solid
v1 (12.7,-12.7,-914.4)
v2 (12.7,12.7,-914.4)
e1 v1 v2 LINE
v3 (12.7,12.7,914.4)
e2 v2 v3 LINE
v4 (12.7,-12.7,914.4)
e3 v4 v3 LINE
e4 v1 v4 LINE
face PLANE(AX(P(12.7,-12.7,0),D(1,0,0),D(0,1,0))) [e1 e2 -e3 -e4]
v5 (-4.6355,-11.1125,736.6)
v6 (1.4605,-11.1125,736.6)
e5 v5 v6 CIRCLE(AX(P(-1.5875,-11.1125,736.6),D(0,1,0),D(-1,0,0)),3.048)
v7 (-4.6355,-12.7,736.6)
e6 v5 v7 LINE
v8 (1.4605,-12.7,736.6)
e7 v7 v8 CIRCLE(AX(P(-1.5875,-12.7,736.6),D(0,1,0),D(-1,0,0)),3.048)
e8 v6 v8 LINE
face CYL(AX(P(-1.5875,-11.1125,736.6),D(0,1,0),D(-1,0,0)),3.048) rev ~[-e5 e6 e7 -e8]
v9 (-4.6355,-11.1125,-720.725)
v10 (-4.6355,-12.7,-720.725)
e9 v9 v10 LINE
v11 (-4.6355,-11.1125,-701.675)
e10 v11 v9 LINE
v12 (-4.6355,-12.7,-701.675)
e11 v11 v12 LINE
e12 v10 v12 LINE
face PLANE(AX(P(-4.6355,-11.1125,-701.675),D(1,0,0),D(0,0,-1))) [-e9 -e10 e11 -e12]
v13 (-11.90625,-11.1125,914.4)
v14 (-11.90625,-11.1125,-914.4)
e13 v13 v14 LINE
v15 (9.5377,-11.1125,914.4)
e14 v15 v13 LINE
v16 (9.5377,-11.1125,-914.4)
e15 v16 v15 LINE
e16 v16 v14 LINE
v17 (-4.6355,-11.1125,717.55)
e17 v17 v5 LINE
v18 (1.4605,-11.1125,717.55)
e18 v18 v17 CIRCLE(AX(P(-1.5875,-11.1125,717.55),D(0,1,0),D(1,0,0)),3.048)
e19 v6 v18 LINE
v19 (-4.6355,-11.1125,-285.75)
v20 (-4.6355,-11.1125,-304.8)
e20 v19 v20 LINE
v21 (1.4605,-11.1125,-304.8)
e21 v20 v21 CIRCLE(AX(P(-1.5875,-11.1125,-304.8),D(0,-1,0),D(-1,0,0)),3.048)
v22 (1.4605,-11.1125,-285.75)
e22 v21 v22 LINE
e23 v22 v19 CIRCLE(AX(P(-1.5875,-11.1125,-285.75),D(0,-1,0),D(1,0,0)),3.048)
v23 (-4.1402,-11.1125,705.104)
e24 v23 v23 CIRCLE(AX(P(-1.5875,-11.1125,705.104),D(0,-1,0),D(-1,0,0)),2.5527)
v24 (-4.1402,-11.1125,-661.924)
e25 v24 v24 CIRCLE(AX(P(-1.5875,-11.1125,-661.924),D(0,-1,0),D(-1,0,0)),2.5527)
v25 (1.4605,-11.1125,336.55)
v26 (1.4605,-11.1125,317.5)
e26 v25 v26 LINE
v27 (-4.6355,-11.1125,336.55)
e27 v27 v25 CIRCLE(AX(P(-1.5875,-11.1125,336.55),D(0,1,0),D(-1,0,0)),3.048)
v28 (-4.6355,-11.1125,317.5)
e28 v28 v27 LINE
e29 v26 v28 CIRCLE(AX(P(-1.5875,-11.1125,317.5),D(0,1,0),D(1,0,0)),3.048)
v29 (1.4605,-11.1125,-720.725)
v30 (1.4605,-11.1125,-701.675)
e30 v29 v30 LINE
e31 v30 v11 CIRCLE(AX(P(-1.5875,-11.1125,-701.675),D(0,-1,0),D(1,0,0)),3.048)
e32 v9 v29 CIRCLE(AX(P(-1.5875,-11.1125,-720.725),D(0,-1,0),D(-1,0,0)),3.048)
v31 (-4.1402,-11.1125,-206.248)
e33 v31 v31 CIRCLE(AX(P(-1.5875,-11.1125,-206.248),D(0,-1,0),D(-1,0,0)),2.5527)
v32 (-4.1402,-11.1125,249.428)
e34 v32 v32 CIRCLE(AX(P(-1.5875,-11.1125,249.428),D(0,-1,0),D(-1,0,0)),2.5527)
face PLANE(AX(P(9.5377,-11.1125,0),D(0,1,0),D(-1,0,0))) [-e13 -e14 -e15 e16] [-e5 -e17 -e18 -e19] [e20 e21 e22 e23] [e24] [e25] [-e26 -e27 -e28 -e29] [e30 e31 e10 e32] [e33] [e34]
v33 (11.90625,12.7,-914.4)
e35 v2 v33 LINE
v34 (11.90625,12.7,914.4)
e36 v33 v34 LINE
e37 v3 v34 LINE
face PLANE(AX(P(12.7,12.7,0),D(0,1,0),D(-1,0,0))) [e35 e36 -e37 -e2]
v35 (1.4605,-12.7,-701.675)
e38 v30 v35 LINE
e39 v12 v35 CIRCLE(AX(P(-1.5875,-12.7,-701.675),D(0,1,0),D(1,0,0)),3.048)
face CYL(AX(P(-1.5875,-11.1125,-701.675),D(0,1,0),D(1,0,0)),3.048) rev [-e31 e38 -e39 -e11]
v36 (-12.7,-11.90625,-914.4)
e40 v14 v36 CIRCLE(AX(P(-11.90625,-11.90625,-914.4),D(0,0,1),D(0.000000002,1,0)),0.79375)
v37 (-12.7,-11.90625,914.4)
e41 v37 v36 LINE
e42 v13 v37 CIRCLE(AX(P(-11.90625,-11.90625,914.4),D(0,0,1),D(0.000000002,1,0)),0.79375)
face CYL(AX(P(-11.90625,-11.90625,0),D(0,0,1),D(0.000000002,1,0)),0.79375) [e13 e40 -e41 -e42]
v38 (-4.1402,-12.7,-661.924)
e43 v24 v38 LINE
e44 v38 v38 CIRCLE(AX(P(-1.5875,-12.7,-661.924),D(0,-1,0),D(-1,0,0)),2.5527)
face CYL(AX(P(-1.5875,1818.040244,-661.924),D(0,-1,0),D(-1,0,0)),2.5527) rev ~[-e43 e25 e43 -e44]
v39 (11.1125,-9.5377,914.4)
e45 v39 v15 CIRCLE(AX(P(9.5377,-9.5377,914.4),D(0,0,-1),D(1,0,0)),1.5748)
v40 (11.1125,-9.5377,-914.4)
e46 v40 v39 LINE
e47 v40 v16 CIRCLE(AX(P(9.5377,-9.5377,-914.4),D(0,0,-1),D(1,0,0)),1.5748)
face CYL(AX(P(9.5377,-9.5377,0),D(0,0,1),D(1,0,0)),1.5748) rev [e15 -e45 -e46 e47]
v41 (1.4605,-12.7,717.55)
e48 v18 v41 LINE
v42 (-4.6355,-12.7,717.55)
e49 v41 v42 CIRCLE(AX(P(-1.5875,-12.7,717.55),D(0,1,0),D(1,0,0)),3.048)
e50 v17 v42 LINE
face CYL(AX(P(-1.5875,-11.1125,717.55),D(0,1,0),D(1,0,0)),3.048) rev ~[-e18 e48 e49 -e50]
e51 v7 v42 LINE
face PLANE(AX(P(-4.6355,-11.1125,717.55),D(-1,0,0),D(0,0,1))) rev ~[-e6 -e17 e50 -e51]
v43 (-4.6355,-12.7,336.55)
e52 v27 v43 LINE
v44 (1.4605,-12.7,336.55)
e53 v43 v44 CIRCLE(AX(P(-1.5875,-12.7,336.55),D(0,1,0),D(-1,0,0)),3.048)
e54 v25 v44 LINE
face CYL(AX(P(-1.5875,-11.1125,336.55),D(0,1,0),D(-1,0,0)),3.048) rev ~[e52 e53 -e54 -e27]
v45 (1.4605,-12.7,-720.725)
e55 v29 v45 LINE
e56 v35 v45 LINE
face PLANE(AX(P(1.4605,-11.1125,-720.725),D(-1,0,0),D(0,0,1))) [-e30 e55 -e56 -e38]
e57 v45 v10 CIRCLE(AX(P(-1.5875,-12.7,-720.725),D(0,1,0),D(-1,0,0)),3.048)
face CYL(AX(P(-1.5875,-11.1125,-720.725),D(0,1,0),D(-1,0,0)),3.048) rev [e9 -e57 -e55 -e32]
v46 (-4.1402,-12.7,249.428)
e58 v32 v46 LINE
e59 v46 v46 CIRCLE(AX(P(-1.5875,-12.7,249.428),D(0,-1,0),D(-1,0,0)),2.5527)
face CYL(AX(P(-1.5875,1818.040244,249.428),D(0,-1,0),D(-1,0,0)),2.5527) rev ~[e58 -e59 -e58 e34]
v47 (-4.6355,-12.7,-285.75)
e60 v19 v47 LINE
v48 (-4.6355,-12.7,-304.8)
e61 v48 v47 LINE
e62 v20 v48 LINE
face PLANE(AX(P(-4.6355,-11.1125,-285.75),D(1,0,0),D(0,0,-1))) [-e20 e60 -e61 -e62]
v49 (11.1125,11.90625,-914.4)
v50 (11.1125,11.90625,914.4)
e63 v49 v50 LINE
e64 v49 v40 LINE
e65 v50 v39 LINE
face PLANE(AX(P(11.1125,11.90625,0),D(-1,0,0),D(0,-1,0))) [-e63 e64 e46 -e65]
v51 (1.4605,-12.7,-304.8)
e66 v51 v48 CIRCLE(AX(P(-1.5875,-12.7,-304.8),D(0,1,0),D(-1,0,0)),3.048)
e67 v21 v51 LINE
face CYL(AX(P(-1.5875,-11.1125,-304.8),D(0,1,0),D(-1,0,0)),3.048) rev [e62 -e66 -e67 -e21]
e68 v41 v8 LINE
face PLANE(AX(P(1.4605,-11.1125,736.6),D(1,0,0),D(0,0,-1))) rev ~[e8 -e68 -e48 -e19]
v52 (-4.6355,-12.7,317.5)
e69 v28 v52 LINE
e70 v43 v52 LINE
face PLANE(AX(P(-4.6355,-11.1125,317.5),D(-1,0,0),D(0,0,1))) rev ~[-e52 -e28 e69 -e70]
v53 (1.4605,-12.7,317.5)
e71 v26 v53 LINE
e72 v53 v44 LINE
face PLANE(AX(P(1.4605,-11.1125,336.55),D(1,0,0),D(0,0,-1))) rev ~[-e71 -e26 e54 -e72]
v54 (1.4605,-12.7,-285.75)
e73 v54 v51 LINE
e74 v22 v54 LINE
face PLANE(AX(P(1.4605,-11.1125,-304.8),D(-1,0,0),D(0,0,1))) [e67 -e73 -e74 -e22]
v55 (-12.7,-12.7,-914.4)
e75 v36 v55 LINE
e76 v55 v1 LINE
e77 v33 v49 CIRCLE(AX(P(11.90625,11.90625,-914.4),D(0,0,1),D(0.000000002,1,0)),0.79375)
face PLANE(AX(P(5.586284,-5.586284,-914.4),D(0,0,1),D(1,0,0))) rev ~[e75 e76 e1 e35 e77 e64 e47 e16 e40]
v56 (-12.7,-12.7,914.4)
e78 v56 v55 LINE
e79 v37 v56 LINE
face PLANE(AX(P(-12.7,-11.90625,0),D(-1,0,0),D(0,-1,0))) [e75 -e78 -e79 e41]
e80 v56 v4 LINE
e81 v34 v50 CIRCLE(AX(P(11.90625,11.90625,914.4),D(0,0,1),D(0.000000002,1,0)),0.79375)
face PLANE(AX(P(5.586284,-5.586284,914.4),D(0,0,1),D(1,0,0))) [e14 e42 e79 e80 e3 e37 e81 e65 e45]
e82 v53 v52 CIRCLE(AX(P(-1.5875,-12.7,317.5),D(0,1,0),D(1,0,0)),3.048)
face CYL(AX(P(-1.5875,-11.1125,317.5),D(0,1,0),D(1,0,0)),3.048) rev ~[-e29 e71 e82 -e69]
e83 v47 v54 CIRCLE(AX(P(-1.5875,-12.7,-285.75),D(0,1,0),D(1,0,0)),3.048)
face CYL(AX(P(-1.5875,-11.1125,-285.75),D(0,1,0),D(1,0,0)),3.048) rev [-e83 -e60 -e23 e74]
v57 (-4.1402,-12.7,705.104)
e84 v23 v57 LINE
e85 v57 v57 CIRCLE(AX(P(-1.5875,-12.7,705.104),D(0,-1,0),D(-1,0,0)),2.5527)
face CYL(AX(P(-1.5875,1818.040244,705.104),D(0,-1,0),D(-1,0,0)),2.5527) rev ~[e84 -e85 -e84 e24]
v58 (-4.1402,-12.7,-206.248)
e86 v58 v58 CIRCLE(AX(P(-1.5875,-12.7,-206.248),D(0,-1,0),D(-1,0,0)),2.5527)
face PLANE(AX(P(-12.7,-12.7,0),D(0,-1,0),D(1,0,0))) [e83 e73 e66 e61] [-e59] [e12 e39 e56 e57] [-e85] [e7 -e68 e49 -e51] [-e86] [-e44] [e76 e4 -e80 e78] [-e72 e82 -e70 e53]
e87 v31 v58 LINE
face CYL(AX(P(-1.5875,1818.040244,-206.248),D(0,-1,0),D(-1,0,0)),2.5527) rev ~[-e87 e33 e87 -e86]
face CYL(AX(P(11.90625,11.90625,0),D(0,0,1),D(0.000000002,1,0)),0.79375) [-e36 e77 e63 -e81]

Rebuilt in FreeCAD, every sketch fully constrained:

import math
import FreeCAD as App
import Part
import Sketcher

V = App.Vector
Q = App.Units.Quantity

doc = App.newDocument("Part")
params = doc.addObject("Spreadsheet::Sheet", "Params")
for row, (alias, value) in enumerate([
    ("sketch1_width", "1 in"),
    ("sketch1_radius", "0.03125 in"),
    ("sketch1_radius2", "0.062 in"),
    ("pad1_length", "72 in"),
    ("sketch2_diameter", "0.201 in"),
    ("hole_diameter", "0.201 in"),
    ("sketch3_radius", "0.12 in"),
    ("sketch3_height", "0.75 in"),
], start=1):
    params.set(f"A{row}", alias)
    params.set(f"B{row}", "=" + value)
    params.setAlias(f"B{row}", alias)

body = doc.addObject("PartDesign::Body", "Body")

sketch1 = doc.addObject("Sketcher::SketchObject", "Sketch")
body.addObject(sketch1)
sketch1.AttachmentSupport = (doc.XY_Plane, [""])
sketch1.MapMode = "FlatFace"
sketch1.addGeometry([
    Part.LineSegment(V(-12.7, -12.7, 0), V(12.7, -12.7, 0)),
    Part.LineSegment(V(12.7, -12.7, 0), V(12.7, 12.7, 0)),
    Part.LineSegment(V(12.7, 12.7, 0), V(11.9, 12.7, 0)),
    Part.ArcOfCircle(Part.Circle(V(11.9, 11.9, 0), V(0, 0, 1), 0.8), math.radians(90), math.radians(180)),
    Part.LineSegment(V(11.1, 11.9, 0), V(11.1, -9.5, 0)),
    Part.ArcOfCircle(Part.Circle(V(9.5, -9.5, 0), V(0, 0, 1), 1.6), math.radians(-90), math.radians(0)),
    Part.LineSegment(V(9.5, -11.1, 0), V(-11.9, -11.1, 0)),
    Part.ArcOfCircle(Part.Circle(V(-11.9, -11.9, 0), V(0, 0, 1), 0.8), math.radians(90), math.radians(180)),
    Part.LineSegment(V(-12.7, -11.9, 0), V(-12.7, -12.7, 0)),
], False)
sketch1.addConstraint([
    Sketcher.Constraint("Coincident", 0, 2, 1, 1),
    Sketcher.Constraint("Coincident", 1, 2, 2, 1),
    Sketcher.Constraint("Tangent", 2, 2, 3, 1),
    Sketcher.Constraint("Tangent", 3, 2, 4, 1),
    Sketcher.Constraint("Tangent", 4, 2, 5, 2),
    Sketcher.Constraint("Tangent", 5, 1, 6, 1),
    Sketcher.Constraint("Tangent", 6, 2, 7, 1),
    Sketcher.Constraint("Tangent", 7, 2, 8, 1),
    Sketcher.Constraint("Coincident", 8, 2, 0, 1),
    Sketcher.Constraint("Horizontal", 0),
    Sketcher.Constraint("Vertical", 1),
    Sketcher.Constraint("Horizontal", 2),
    Sketcher.Constraint("Vertical", 4),
    Sketcher.Constraint("Horizontal", 6),
    Sketcher.Constraint("Vertical", 8),
    Sketcher.Constraint("Equal", 3, 7),
    Sketcher.Constraint("Symmetric", 3, 3, 7, 3, -1, 1),
    Sketcher.Constraint("Symmetric", 1, 2, 8, 2, -1, 1),
    Sketcher.Constraint("Equal", 0, 1),
    Sketcher.Constraint("DistanceX", 0, 1, 0, 2, Q("1 in")),
    Sketcher.Constraint("Radius", 3, Q("0.03125 in")),
    Sketcher.Constraint("Radius", 5, Q("0.062 in")),
])
sketch1.setExpression("Constraints[19]", "Params.sketch1_width")
sketch1.setExpression("Constraints[20]", "Params.sketch1_radius")
sketch1.setExpression("Constraints[21]", "Params.sketch1_radius2")
pad1 = doc.addObject("PartDesign::Pad", "Pad")
body.addObject(pad1)
pad1.Profile = sketch1
pad1.setExpression("Length", "Params.pad1_length")
pad1.Midplane = True

sketch2 = doc.addObject("Sketcher::SketchObject", "Sketch001")
body.addObject(sketch2)
sketch2.AttachmentSupport = (doc.XZ_Plane, [""])
sketch2.MapMode = "FlatFace"
sketch2.AttachmentOffset = App.Placement(V(0, 0, 0.4375 * 25.4), App.Rotation())
sketch2.addGeometry([
    Part.Circle(V(-1.6, 705.1, 0), V(0, 0, 1), 2.6),
    Part.Circle(V(-1.6, 249.4, 0), V(0, 0, 1), 2.6),
    Part.Circle(V(-1.6, -661.9, 0), V(0, 0, 1), 2.6),
    Part.Circle(V(-1.6, -206.2, 0), V(0, 0, 1), 2.6),
], False)
sketch2.addConstraint([
    Sketcher.Constraint("Equal", 0, 1),
    Sketcher.Constraint("Equal", 1, 2),
    Sketcher.Constraint("Equal", 2, 3),
    Sketcher.Constraint("Vertical", 0, 3, 1, 3),
    Sketcher.Constraint("Vertical", 1, 3, 2, 3),
    Sketcher.Constraint("Vertical", 2, 3, 3, 3),
    Sketcher.Constraint("Diameter", 0, Q("0.201 in")),
    Sketcher.Constraint("DistanceY", -1, 1, 0, 3, Q("27.76 in")),
    Sketcher.Constraint("DistanceY", -1, 1, 1, 3, Q("9.82 in")),
    Sketcher.Constraint("DistanceY", 2, 3, -1, 1, Q("26.06 in")),
    Sketcher.Constraint("DistanceY", 3, 3, -1, 1, Q("8.12 in")),
    Sketcher.Constraint("DistanceX", 0, 3, -1, 1, Q("0.0625 in")),
])
sketch2.setExpression("Constraints[6]", "Params.sketch2_diameter")
doc.recompute()
hole = doc.addObject("PartDesign::Hole", "Hole")
body.addObject(hole)
hole.Profile = sketch2
hole.ThreadType = "None"
hole.setExpression("Diameter", "Params.hole_diameter")
hole.DepthType = "ThroughAll"
hole.Reversed = True

sketch3 = doc.addObject("Sketcher::SketchObject", "Sketch002")
body.addObject(sketch3)
sketch3.AttachmentSupport = (doc.XZ_Plane, [""])
sketch3.MapMode = "FlatFace"
sketch3.AttachmentOffset = App.Placement(V(0, 0, 0.4375 * 25.4), App.Rotation())
sketch3.addGeometry([
    Part.LineSegment(V(-4.6, -720.7, 0), V(-4.6, -701.7, 0)),
    Part.ArcOfCircle(Part.Circle(V(-1.6, -701.7, 0), V(0, 0, 1), 3), math.radians(0), math.radians(180)),
    Part.LineSegment(V(1.5, -701.7, 0), V(1.5, -720.7, 0)),
    Part.ArcOfCircle(Part.Circle(V(-1.6, -720.7, 0), V(0, 0, 1), 3), math.radians(180), math.radians(360)),
    Part.LineSegment(V(1.5, -285.8, 0), V(1.5, -304.8, 0)),
    Part.ArcOfCircle(Part.Circle(V(-1.6, -304.8, 0), V(0, 0, 1), 3), math.radians(180), math.radians(360)),
    Part.LineSegment(V(-4.6, -304.8, 0), V(-4.6, -285.8, 0)),
    Part.ArcOfCircle(Part.Circle(V(-1.6, -285.8, 0), V(0, 0, 1), 3), math.radians(0), math.radians(180)),
    Part.LineSegment(V(1.5, 336.6, 0), V(1.5, 317.5, 0)),
    Part.ArcOfCircle(Part.Circle(V(-1.6, 317.5, 0), V(0, 0, 1), 3), math.radians(180), math.radians(360)),
    Part.LineSegment(V(-4.6, 317.5, 0), V(-4.6, 336.6, 0)),
    Part.ArcOfCircle(Part.Circle(V(-1.6, 336.6, 0), V(0, 0, 1), 3), math.radians(0), math.radians(180)),
    Part.LineSegment(V(-4.6, 717.5, 0), V(-4.6, 736.6, 0)),
    Part.ArcOfCircle(Part.Circle(V(-1.6, 736.6, 0), V(0, 0, 1), 3), math.radians(0), math.radians(180)),
    Part.LineSegment(V(1.5, 736.6, 0), V(1.5, 717.5, 0)),
    Part.ArcOfCircle(Part.Circle(V(-1.6, 717.5, 0), V(0, 0, 1), 3), math.radians(180), math.radians(360)),
], False)
sketch3.addConstraint([
    Sketcher.Constraint("Tangent", 0, 2, 1, 2),
    Sketcher.Constraint("Tangent", 1, 1, 2, 1),
    Sketcher.Constraint("Tangent", 2, 2, 3, 2),
    Sketcher.Constraint("Tangent", 3, 1, 0, 1),
    Sketcher.Constraint("Tangent", 4, 2, 5, 2),
    Sketcher.Constraint("Tangent", 5, 1, 6, 1),
    Sketcher.Constraint("Tangent", 6, 2, 7, 2),
    Sketcher.Constraint("Tangent", 7, 1, 4, 1),
    Sketcher.Constraint("Tangent", 8, 2, 9, 2),
    Sketcher.Constraint("Tangent", 9, 1, 10, 1),
    Sketcher.Constraint("Tangent", 10, 2, 11, 2),
    Sketcher.Constraint("Tangent", 11, 1, 8, 1),
    Sketcher.Constraint("Tangent", 12, 2, 13, 2),
    Sketcher.Constraint("Tangent", 13, 1, 14, 1),
    Sketcher.Constraint("Tangent", 14, 2, 15, 2),
    Sketcher.Constraint("Tangent", 15, 1, 12, 1),
    Sketcher.Constraint("Vertical", 0),
    Sketcher.Constraint("Vertical", 2),
    Sketcher.Constraint("Vertical", 4),
    Sketcher.Constraint("Vertical", 6),
    Sketcher.Constraint("Vertical", 8),
    Sketcher.Constraint("Vertical", 10),
    Sketcher.Constraint("Vertical", 12),
    Sketcher.Constraint("Vertical", 14),
    Sketcher.Constraint("Equal", 3, 5),
    Sketcher.Constraint("Equal", 7, 9),
    Sketcher.Constraint("Equal", 11, 13),
    Sketcher.Constraint("Vertical", 3, 3, 5, 3),
    Sketcher.Constraint("Vertical", 7, 3, 9, 3),
    Sketcher.Constraint("Vertical", 11, 3, 13, 3),
    Sketcher.Constraint("Equal", 2, 4),
    Sketcher.Constraint("Equal", 6, 8),
    Sketcher.Constraint("Equal", 10, 12),
    Sketcher.Constraint("Radius", 1, Q("0.12 in")),
    Sketcher.Constraint("DistanceY", 5, 3, -1, 1, Q("12 in")),
    Sketcher.Constraint("DistanceY", -1, 1, 13, 3, Q("29 in")),
    Sketcher.Constraint("DistanceY", 11, 3, 15, 3, Q("15 in")),
    Sketcher.Constraint("DistanceY", 0, 1, 0, 2, Q("0.75 in")),
    Sketcher.Constraint("DistanceX", 1, 3, -1, 1, Q("0.0625 in")),
    Sketcher.Constraint("DistanceY", 1, 3, -1, 1, Q("27.625 in")),
])
sketch3.setExpression("Constraints[33]", "Params.sketch3_radius")
sketch3.setExpression("Constraints[37]", "Params.sketch3_height")
pocket1 = doc.addObject("PartDesign::Pocket", "Pocket")
body.addObject(pocket1)
pocket1.Profile = sketch3
pocket1.Type = "ThroughAll"
pocket1.Reversed = True

doc.recompute()
